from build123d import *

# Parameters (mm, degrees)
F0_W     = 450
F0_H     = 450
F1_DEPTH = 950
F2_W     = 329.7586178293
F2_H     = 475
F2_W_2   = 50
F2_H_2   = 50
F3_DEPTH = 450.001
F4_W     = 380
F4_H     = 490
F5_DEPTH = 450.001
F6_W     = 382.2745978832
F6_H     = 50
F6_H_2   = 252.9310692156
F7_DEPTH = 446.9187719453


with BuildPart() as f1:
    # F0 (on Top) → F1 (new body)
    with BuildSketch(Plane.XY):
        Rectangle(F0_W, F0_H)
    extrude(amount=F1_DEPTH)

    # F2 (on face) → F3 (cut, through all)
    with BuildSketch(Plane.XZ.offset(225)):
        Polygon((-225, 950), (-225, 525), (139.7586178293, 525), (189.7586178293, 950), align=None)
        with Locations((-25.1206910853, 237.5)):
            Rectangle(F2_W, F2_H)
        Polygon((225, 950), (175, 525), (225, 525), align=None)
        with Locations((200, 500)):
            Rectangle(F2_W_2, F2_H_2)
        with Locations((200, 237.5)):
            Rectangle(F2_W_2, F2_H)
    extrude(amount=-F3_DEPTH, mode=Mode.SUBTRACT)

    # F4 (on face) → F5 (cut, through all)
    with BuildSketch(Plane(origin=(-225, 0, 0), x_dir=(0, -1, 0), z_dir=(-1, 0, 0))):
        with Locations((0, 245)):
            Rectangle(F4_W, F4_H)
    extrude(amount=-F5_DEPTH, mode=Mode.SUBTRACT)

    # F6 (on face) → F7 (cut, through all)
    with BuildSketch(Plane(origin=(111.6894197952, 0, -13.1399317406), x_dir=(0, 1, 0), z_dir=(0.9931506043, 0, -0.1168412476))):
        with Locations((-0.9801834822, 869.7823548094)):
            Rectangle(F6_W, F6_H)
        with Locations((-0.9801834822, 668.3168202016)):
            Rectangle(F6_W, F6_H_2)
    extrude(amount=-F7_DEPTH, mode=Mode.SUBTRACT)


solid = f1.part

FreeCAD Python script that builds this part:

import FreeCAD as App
import Part
import Sketcher

V = App.Vector
Q = App.Units.Quantity


def add_polygon(sketch, points):
    """Adds a closed chain of lines whose ends are joined by coincident constraints."""
    first, n = sketch.GeometryCount, len(points)
    for a, b in zip(points, points[1:] + points[:1]):
        sketch.addGeometry(Part.LineSegment(App.Vector(*a, 0), App.Vector(*b, 0)), False)
    for i in range(n):
        sketch.addConstraint(Sketcher.Constraint("Coincident", first + i, 2, first + (i + 1) % n, 1))

doc = App.newDocument("Part")
body = doc.addObject("PartDesign::Body", "Body")

# Sketch on XY plane
sketch1 = body.newObject("Sketcher::SketchObject", "Sketch")
sketch1.AttachmentSupport = (doc.getObject("XY_Plane"), [""])
sketch1.MapMode = "FlatFace"
add_polygon(sketch1, [(-225, 225), (-225, -225), (225, -225), (225, 225)])  # lines 0-3
sketch1.addConstraint([
    Sketcher.Constraint("Vertical", 0),
    Sketcher.Constraint("Horizontal", 1),
    Sketcher.Constraint("Vertical", 2),
    Sketcher.Constraint("Horizontal", 3),
    Sketcher.Constraint("Symmetric", 0, 2, 2, 2, -1, 1),
    Sketcher.Constraint("Equal", 3, 0),
    Sketcher.Constraint("DistanceX", 1, 1, 1, 2, Q("450 mm")),
])
pad1 = body.newObject("PartDesign::Pad", "Pad")
pad1.Profile = sketch1
pad1.Length = 950

# Sketch on XZ plane
sketch2 = body.newObject("Sketcher::SketchObject", "Sketch001")
sketch2.AttachmentSupport = (doc.getObject("XZ_Plane"), [""])
sketch2.MapMode = "FlatFace"
sketch2.AttachmentOffset = App.Placement(V(0, 0, 225), App.Rotation())
add_polygon(sketch2, [(-225, 950), (-225, 525), (140, 525), (190, 950)])  # lines 0-3
add_polygon(sketch2, [(-190, 475), (-190, 0), (140, 0), (140, 475)])  # lines 4-7
add_polygon(sketch2, [(225, 950), (175, 525), (175, 0), (225, 0)])  # lines 8-11
sketch2.addConstraint([
    Sketcher.Constraint("Vertical", 0),
    Sketcher.Constraint("Horizontal", 1),
    Sketcher.Constraint("Horizontal", 3),
    Sketcher.Constraint("Vertical", 4),
    Sketcher.Constraint("Horizontal", 5),
    Sketcher.Constraint("Vertical", 6),
    Sketcher.Constraint("Horizontal", 7),
    Sketcher.Constraint("Vertical", 9),
    Sketcher.Constraint("Horizontal", 10),
    Sketcher.Constraint("Vertical", 11),
    Sketcher.Constraint("Symmetric", 3, 2, 11, 2, -2),
    Sketcher.Constraint("PointOnObject", 4, 2, -1),
    Sketcher.Constraint("PointOnObject", 9, 2, -1),
    Sketcher.Constraint("Parallel", 2, 8),
    Sketcher.Constraint("Horizontal", 1, 2, 8, 2),
    Sketcher.Constraint("Vertical", 1, 2, 5, 2),
    Sketcher.Constraint("DistanceX", 10, 1, 10, 2, Q("50 mm")),
    Sketcher.Constraint("DistanceY", 0, 2, 0, 1, Q("425 mm")),
    Sketcher.Constraint("DistanceY", 4, 2, 4, 1, Q("475 mm")),
    Sketcher.Constraint("DistanceY", 9, 2, 9, 1, Q("525 mm")),
    Sketcher.Constraint("DistanceX", 0, 2, -1, 1, Q("225 mm")),
    Sketcher.Constraint("DistanceX", 4, 2, -1, 1, Q("190 mm")),
    Sketcher.Constraint("DistanceX", 1, 1, 1, 2, Q("364.758618 mm")),
])
pocket1 = body.newObject("PartDesign::Pocket", "Pocket")
pocket1.Profile = sketch2
pocket1.Type = "ThroughAll"

# Sketch on YZ plane
sketch3 = body.newObject("Sketcher::SketchObject", "Sketch002")
sketch3.AttachmentSupport = (doc.getObject("YZ_Plane"), [""])
sketch3.MapMode = "FlatFace"
sketch3.AttachmentOffset = App.Placement(V(0, 0, -225), App.Rotation())
add_polygon(sketch3, [(190, 490), (190, 0), (-190, 0), (-190, 490)])  # lines 0-3
sketch3.addConstraint([
    Sketcher.Constraint("Vertical", 0),
    Sketcher.Constraint("Horizontal", 1),
    Sketcher.Constraint("Vertical", 2),
    Sketcher.Constraint("Horizontal", 3),
    Sketcher.Constraint("Symmetric", 0, 2, 1, 2, -1, 1),
    Sketcher.Constraint("DistanceX", 1, 2, 1, 1, Q("380 mm")),
    Sketcher.Constraint("DistanceY", 0, 2, 0, 1, Q("490 mm")),
])
pocket2 = body.newObject("PartDesign::Pocket", "Pocket001")
pocket2.Profile = sketch3
pocket2.Type = "ThroughAll"
pocket2.Reversed = True

# Sketch on an angled plane
sketch4 = body.newObject("Sketcher::SketchObject", "Sketch003")
sketch4.Placement = App.Placement(V(111.68942, 0, -13.139932), App.Rotation(V(0, 1, 0), V(0.116841248, 0, 0.993150604), V(0.993150604, 0, -0.116841248), "ZXY"))
add_polygon(sketch4, [(-192, 895), (-192, 845), (190, 845), (190, 895)])  # lines 0-3
add_polygon(sketch4, [(-192, 795), (-192, 542), (190, 542), (190, 795)])  # lines 4-7
sketch4.addConstraint([
    Sketcher.Constraint("Vertical", 0),
    Sketcher.Constraint("Horizontal", 1),
    Sketcher.Constraint("Vertical", 2),
    Sketcher.Constraint("Horizontal", 3),
    Sketcher.Constraint("Vertical", 4),
    Sketcher.Constraint("Horizontal", 5),
    Sketcher.Constraint("Vertical", 6),
    Sketcher.Constraint("Horizontal", 7),
    Sketcher.Constraint("Vertical", 3, 2, 4, 2),
    Sketcher.Constraint("Vertical", 2, 2, 5, 2),
    Sketcher.Constraint("DistanceY", 0, 2, 0, 1, Q("50 mm")),
    Sketcher.Constraint("DistanceY", 6, 2, 1, 2, Q("50 mm")),
    Sketcher.Constraint("DistanceY", 4, 2, 4, 1, Q("252.931069 mm")),
    Sketcher.Constraint("DistanceX", 1, 1, 1, 2, Q("382.274598 mm")),
    Sketcher.Constraint("DistanceX", 0, 2, -1, 1, Q("192.117482 mm")),
    Sketcher.Constraint("DistanceY", -1, 1, 0, 2, Q("844.782354 mm")),
])
pocket3 = body.newObject("PartDesign::Pocket", "Pocket002")
pocket3.Profile = sketch4
pocket3.Type = "ThroughAll"

doc.recompute()
